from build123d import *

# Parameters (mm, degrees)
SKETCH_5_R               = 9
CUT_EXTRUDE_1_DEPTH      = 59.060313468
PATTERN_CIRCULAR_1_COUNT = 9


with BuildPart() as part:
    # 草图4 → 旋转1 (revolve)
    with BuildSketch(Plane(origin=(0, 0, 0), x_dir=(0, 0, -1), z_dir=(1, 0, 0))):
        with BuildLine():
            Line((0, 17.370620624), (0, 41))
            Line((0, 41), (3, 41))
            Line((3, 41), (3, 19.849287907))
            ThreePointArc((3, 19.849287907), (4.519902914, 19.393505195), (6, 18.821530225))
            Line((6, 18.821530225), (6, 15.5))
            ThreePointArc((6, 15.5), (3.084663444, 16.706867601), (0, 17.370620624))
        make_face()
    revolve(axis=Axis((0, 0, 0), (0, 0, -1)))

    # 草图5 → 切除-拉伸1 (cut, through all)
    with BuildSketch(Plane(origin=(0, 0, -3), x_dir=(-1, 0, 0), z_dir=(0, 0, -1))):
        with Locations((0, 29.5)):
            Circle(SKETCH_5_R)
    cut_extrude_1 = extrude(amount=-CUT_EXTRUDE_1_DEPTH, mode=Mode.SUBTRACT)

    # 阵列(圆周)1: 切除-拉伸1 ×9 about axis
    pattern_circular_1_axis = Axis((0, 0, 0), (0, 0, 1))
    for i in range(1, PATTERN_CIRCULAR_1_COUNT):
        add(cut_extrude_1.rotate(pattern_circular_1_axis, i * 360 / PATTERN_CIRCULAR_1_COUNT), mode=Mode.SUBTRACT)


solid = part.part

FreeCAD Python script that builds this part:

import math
import FreeCAD as App
import Part
import Sketcher
from FreeCAD import Vector
Q = App.Units.Quantity

doc = App.newDocument("Part")
body = doc.addObject("PartDesign::Body", "Body")

# Sketch on YZ plane
sketch1 = body.newObject("Sketcher::SketchObject", "Sketch")
sketch1.AttachmentSupport = (doc.getObject("YZ_Plane"), [""])
sketch1.MapMode = "FlatFace"
sketch1.addGeometry([
    Part.LineSegment(Vector(41, 0, 0), Vector(17.4, 0, 0)),  # 0
    Part.ArcOfCircle(Part.Circle(Vector(0, 2.1, 0), Vector(0, 0, 1), 17.5), math.radians(-28), math.radians(-7)),  # 1
    Part.LineSegment(Vector(15.5, -6, 0), Vector(18.8, -6, 0)),  # 2
    Part.ArcOfCircle(Part.Circle(Vector(0, 2.1, 0), Vector(0, 0, 1), 20.5), math.radians(-23.35), math.radians(-14.47)),  # 3
    Part.LineSegment(Vector(19.8, -3, 0), Vector(41, -3, 0)),  # 4
    Part.LineSegment(Vector(41, -3, 0), Vector(41, 0, 0)),  # 5
], False)
sketch1.addConstraint([
    Sketcher.Constraint("Coincident", 0, 2, 1, 2),
    Sketcher.Constraint("Coincident", 1, 1, 2, 1),
    Sketcher.Constraint("Coincident", 2, 2, 3, 1),
    Sketcher.Constraint("Coincident", 3, 2, 4, 1),
    Sketcher.Constraint("Coincident", 4, 2, 5, 1),
    Sketcher.Constraint("Coincident", 5, 2, 0, 1),
    Sketcher.Constraint("Horizontal", 0),
    Sketcher.Constraint("Horizontal", 2),
    Sketcher.Constraint("Horizontal", 4),
    Sketcher.Constraint("Vertical", 5),
    Sketcher.Constraint("Coincident", 3, 3, 1, 3),
    Sketcher.Constraint("PointOnObject", 1, 3, -2),
    Sketcher.Constraint("PointOnObject", 0, 2, -1),
    Sketcher.Constraint("Radius", 1, Q("17.5 mm")),
    Sketcher.Constraint("Radius", 3, Q("20.5 mm")),
    Sketcher.Constraint("DistanceY", 5, 1, 5, 2, Q("3 mm")),
    Sketcher.Constraint("DistanceY", 1, 1, -1, 1, Q("6 mm")),
    Sketcher.Constraint("DistanceX", -1, 1, 4, 2, Q("41 mm")),
    Sketcher.Constraint("DistanceX", -1, 1, 1, 1, Q("15.5 mm")),
])
revolution = body.newObject("PartDesign::Revolution", "Revolution")
revolution.Profile = sketch1
revolution.ReferenceAxis = (sketch1, ["V_Axis"])
revolution.Angle = 360

# Sketch on XY plane
sketch2 = body.newObject("Sketcher::SketchObject", "Sketch001")
sketch2.AttachmentSupport = (doc.getObject("XY_Plane"), [""])
sketch2.MapMode = "FlatFace"
sketch2.AttachmentOffset = App.Placement(Vector(0, 0, -3), App.Rotation())
sketch2.addGeometry(Part.Circle(Vector(0, 30, 0), Vector(0, 0, 1), 9), False)
sketch2.addConstraint([
    Sketcher.Constraint("PointOnObject", 0, 3, -2),
    Sketcher.Constraint("Diameter", 0, Q("18 mm")),
    Sketcher.Constraint("DistanceY", -1, 1, 0, 3, Q("29.5 mm")),
])
pocket1 = body.newObject("PartDesign::Pocket", "Pocket")
pocket1.Profile = sketch2
pocket1.Type = "ThroughAll"
pocket1.Reversed = True
doc.recompute()

polarpattern = body.newObject("PartDesign::PolarPattern", "PolarPattern")
polarpattern.Originals = [pocket1]
polarpattern.Axis = (doc.getObject("Z_Axis"), [""])
polarpattern.Angle = 360
polarpattern.Occurrences = 9
body.Tip = polarpattern

doc.recompute()
